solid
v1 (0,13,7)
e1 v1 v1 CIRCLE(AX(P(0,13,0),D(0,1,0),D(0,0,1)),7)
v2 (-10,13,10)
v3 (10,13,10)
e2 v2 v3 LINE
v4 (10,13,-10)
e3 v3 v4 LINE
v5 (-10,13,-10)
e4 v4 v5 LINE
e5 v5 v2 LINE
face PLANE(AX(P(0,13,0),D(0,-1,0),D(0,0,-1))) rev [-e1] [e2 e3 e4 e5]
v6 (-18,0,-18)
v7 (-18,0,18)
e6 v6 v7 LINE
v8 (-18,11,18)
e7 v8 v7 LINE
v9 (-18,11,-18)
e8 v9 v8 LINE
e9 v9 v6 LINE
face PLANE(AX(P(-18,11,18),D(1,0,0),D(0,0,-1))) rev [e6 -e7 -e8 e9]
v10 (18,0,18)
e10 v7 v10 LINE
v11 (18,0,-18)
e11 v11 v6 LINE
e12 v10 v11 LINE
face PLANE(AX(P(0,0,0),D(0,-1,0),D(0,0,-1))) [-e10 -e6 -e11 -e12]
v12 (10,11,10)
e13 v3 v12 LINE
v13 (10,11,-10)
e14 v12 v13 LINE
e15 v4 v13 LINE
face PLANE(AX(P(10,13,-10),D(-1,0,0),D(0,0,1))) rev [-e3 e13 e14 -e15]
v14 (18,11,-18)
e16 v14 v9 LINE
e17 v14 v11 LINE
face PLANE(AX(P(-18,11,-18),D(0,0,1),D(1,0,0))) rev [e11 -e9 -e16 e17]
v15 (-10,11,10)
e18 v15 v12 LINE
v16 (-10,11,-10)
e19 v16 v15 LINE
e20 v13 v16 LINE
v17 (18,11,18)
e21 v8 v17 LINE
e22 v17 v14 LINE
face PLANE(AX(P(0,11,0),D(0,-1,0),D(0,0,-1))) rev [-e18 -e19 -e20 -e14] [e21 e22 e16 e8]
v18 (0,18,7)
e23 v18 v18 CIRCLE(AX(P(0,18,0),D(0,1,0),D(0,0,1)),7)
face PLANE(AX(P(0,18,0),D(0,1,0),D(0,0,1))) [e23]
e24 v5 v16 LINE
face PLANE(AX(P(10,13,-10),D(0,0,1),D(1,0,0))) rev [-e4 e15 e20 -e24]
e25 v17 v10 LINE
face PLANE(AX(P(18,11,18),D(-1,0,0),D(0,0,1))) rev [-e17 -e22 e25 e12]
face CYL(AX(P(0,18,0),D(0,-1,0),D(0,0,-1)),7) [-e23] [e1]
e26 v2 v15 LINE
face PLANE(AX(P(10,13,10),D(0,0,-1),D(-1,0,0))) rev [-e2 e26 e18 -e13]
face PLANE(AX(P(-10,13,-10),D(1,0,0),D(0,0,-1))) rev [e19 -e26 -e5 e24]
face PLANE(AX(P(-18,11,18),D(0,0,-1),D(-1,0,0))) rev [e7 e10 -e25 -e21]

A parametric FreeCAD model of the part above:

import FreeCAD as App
import Part
import Sketcher
Q = App.Units.Quantity

doc = App.newDocument("Part")
body = doc.addObject("PartDesign::Body", "Body")

sketch1 = doc.addObject("Sketcher::SketchObject", "Sketch")
body.addObject(sketch1)
sketch1.AttachmentSupport = (doc.XZ_Plane, [""])
sketch1.MapMode = "FlatFace"
sketch1.addGeometry([
    Part.LineSegment(App.Vector(-18, -18, 0), App.Vector(-18, 18, 0)),
    Part.LineSegment(App.Vector(-18, 18, 0), App.Vector(18, 18, 0)),
    Part.LineSegment(App.Vector(18, 18, 0), App.Vector(18, -18, 0)),
    Part.LineSegment(App.Vector(18, -18, 0), App.Vector(-18, -18, 0)),
], False)
sketch1.addConstraint([
    Sketcher.Constraint("Coincident", 0, 2, 1, 1),
    Sketcher.Constraint("Coincident", 1, 2, 2, 1),
    Sketcher.Constraint("Coincident", 2, 2, 3, 1),
    Sketcher.Constraint("Coincident", 3, 2, 0, 1),
    Sketcher.Constraint("Vertical", 0),
    Sketcher.Constraint("Horizontal", 1),
    Sketcher.Constraint("Vertical", 2),
    Sketcher.Constraint("Horizontal", 3),
    Sketcher.Constraint("Symmetric", 0, 2, 2, 2, -1, 1),
    Sketcher.Constraint("Equal", 3, 0),
    Sketcher.Constraint("DistanceX", 1, 1, 1, 2, Q("36 mm")),
])
pad1 = doc.addObject("PartDesign::Pad", "Pad")
body.addObject(pad1)
pad1.Profile = sketch1
pad1.Length = 11
pad1.Reversed = True

sketch2 = doc.addObject("Sketcher::SketchObject", "Sketch001")
body.addObject(sketch2)
sketch2.AttachmentSupport = (doc.XZ_Plane, [""])
sketch2.MapMode = "FlatFace"
sketch2.AttachmentOffset = App.Placement(App.Vector(0, 0, -11), App.Rotation())
sketch2.addGeometry([
    Part.LineSegment(App.Vector(-10, -10, 0), App.Vector(-10, 10, 0)),
    Part.LineSegment(App.Vector(-10, 10, 0), App.Vector(10, 10, 0)),
    Part.LineSegment(App.Vector(10, 10, 0), App.Vector(10, -10, 0)),
    Part.LineSegment(App.Vector(10, -10, 0), App.Vector(-10, -10, 0)),
], False)
sketch2.addConstraint([
    Sketcher.Constraint("Coincident", 0, 2, 1, 1),
    Sketcher.Constraint("Coincident", 1, 2, 2, 1),
    Sketcher.Constraint("Coincident", 2, 2, 3, 1),
    Sketcher.Constraint("Coincident", 3, 2, 0, 1),
    Sketcher.Constraint("Vertical", 0),
    Sketcher.Constraint("Horizontal", 1),
    Sketcher.Constraint("Vertical", 2),
    Sketcher.Constraint("Horizontal", 3),
    Sketcher.Constraint("Symmetric", 0, 2, 2, 2, -1, 1),
    Sketcher.Constraint("Equal", 3, 0),
    Sketcher.Constraint("DistanceX", 1, 1, 1, 2, Q("20 mm")),
])
pad2 = doc.addObject("PartDesign::Pad", "Pad001")
body.addObject(pad2)
pad2.Profile = sketch2
pad2.Length = 2
pad2.Reversed = True

sketch3 = doc.addObject("Sketcher::SketchObject", "Sketch002")
body.addObject(sketch3)
sketch3.AttachmentSupport = (doc.XZ_Plane, [""])
sketch3.MapMode = "FlatFace"
sketch3.AttachmentOffset = App.Placement(App.Vector(0, 0, -13), App.Rotation())
sketch3.addGeometry(Part.Circle(App.Vector(0, 0, 0), App.Vector(0, 0, 1), 7), False)
sketch3.addConstraint([
    Sketcher.Constraint("Coincident", 0, 3, -1, 1),
    Sketcher.Constraint("Diameter", 0, Q("14 mm")),
])
pad3 = doc.addObject("PartDesign::Pad", "Pad002")
body.addObject(pad3)
pad3.Profile = sketch3
pad3.Length = 5
pad3.Reversed = True

doc.recompute()
